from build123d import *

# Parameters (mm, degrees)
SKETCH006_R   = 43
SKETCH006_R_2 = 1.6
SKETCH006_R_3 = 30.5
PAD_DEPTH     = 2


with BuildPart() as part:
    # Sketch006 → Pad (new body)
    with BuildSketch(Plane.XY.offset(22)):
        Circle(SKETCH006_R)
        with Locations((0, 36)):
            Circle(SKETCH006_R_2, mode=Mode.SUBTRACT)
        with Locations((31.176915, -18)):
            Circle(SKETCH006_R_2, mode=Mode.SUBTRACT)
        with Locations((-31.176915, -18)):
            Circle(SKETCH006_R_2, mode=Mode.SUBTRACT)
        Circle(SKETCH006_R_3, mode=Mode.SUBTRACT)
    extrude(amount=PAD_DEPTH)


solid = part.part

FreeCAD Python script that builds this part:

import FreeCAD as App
import Part
import Sketcher

V = App.Vector

doc = App.newDocument("Part")
params = doc.addObject("Spreadsheet::Sheet", "Params")
for row, (alias, value) in enumerate([
    ("sketch1_diameter", "86 mm"),
    ("sketch1_diameter2", "61 mm"),
    ("sketch1_diameter3", "3.2 mm"),
    ("pad1_length", "2 mm"),
], start=1):
    params.set(f"A{row}", alias)
    params.set(f"B{row}", "=" + value)
    params.setAlias(f"B{row}", alias)

body = doc.addObject("PartDesign::Body", "Body")

# Sketch on XY plane
sketch1 = body.newObject("Sketcher::SketchObject", "Sketch")
sketch1.AttachmentSupport = (doc.getObject("XY_Plane"), [""])
sketch1.MapMode = "FlatFace"
sketch1.AttachmentOffset = App.Placement(V(0, 0, 22), App.Rotation())
sketch1.addGeometry(Part.Circle(V(0, 0, 0), V(0, 0, 1), 43), False)
sketch1.addGeometry(Part.Circle(V(-31.176915, -18, 0), V(0, 0, 1), 1.6), False)
sketch1.addGeometry(Part.Circle(V(31.176915, -18, 0), V(0, 0, 1), 1.6), False)
sketch1.addGeometry(Part.Circle(V(0, 0, 0), V(0, 0, 1), 30.5), False)
sketch1.addGeometry(Part.Circle(V(0, 36, 0), V(0, 0, 1), 1.6), False)
sketch1.addConstraint(Sketcher.Constraint("Coincident", 0, 3, -1, 1))
sketch1.addConstraint(Sketcher.Constraint("Coincident", 3, 3, -1, 1))
sketch1.addConstraint(Sketcher.Constraint("Equal", 1, 2))
sketch1.addConstraint(Sketcher.Constraint("Equal", 2, 4))
sketch1.addConstraint(Sketcher.Constraint("Symmetric", 1, 3, 2, 3, -2))
sketch1.addConstraint(Sketcher.Constraint("PointOnObject", 4, 3, -2))
sketch1.addConstraint(Sketcher.Constraint("Diameter", 0, 86.0))
sketch1.addConstraint(Sketcher.Constraint("Diameter", 3, 61.0))
sketch1.addConstraint(Sketcher.Constraint("Diameter", 1, 3.2))
sketch1.addConstraint(Sketcher.Constraint("DistanceY", 1, 3, -1, 1, 18.0))
sketch1.addConstraint(Sketcher.Constraint("DistanceY", -1, 1, 4, 3, 36.0))
sketch1.addConstraint(Sketcher.Constraint("DistanceX", 1, 3, 2, 3, 62.35383))
sketch1.setExpression("Constraints[6]", "Params.sketch1_diameter")
sketch1.setExpression("Constraints[7]", "Params.sketch1_diameter2")
sketch1.setExpression("Constraints[8]", "Params.sketch1_diameter3")
pad1 = body.newObject("PartDesign::Pad", "Pad")
pad1.Profile = sketch1
pad1.setExpression("Length", "Params.pad1_length")

doc.recompute()
